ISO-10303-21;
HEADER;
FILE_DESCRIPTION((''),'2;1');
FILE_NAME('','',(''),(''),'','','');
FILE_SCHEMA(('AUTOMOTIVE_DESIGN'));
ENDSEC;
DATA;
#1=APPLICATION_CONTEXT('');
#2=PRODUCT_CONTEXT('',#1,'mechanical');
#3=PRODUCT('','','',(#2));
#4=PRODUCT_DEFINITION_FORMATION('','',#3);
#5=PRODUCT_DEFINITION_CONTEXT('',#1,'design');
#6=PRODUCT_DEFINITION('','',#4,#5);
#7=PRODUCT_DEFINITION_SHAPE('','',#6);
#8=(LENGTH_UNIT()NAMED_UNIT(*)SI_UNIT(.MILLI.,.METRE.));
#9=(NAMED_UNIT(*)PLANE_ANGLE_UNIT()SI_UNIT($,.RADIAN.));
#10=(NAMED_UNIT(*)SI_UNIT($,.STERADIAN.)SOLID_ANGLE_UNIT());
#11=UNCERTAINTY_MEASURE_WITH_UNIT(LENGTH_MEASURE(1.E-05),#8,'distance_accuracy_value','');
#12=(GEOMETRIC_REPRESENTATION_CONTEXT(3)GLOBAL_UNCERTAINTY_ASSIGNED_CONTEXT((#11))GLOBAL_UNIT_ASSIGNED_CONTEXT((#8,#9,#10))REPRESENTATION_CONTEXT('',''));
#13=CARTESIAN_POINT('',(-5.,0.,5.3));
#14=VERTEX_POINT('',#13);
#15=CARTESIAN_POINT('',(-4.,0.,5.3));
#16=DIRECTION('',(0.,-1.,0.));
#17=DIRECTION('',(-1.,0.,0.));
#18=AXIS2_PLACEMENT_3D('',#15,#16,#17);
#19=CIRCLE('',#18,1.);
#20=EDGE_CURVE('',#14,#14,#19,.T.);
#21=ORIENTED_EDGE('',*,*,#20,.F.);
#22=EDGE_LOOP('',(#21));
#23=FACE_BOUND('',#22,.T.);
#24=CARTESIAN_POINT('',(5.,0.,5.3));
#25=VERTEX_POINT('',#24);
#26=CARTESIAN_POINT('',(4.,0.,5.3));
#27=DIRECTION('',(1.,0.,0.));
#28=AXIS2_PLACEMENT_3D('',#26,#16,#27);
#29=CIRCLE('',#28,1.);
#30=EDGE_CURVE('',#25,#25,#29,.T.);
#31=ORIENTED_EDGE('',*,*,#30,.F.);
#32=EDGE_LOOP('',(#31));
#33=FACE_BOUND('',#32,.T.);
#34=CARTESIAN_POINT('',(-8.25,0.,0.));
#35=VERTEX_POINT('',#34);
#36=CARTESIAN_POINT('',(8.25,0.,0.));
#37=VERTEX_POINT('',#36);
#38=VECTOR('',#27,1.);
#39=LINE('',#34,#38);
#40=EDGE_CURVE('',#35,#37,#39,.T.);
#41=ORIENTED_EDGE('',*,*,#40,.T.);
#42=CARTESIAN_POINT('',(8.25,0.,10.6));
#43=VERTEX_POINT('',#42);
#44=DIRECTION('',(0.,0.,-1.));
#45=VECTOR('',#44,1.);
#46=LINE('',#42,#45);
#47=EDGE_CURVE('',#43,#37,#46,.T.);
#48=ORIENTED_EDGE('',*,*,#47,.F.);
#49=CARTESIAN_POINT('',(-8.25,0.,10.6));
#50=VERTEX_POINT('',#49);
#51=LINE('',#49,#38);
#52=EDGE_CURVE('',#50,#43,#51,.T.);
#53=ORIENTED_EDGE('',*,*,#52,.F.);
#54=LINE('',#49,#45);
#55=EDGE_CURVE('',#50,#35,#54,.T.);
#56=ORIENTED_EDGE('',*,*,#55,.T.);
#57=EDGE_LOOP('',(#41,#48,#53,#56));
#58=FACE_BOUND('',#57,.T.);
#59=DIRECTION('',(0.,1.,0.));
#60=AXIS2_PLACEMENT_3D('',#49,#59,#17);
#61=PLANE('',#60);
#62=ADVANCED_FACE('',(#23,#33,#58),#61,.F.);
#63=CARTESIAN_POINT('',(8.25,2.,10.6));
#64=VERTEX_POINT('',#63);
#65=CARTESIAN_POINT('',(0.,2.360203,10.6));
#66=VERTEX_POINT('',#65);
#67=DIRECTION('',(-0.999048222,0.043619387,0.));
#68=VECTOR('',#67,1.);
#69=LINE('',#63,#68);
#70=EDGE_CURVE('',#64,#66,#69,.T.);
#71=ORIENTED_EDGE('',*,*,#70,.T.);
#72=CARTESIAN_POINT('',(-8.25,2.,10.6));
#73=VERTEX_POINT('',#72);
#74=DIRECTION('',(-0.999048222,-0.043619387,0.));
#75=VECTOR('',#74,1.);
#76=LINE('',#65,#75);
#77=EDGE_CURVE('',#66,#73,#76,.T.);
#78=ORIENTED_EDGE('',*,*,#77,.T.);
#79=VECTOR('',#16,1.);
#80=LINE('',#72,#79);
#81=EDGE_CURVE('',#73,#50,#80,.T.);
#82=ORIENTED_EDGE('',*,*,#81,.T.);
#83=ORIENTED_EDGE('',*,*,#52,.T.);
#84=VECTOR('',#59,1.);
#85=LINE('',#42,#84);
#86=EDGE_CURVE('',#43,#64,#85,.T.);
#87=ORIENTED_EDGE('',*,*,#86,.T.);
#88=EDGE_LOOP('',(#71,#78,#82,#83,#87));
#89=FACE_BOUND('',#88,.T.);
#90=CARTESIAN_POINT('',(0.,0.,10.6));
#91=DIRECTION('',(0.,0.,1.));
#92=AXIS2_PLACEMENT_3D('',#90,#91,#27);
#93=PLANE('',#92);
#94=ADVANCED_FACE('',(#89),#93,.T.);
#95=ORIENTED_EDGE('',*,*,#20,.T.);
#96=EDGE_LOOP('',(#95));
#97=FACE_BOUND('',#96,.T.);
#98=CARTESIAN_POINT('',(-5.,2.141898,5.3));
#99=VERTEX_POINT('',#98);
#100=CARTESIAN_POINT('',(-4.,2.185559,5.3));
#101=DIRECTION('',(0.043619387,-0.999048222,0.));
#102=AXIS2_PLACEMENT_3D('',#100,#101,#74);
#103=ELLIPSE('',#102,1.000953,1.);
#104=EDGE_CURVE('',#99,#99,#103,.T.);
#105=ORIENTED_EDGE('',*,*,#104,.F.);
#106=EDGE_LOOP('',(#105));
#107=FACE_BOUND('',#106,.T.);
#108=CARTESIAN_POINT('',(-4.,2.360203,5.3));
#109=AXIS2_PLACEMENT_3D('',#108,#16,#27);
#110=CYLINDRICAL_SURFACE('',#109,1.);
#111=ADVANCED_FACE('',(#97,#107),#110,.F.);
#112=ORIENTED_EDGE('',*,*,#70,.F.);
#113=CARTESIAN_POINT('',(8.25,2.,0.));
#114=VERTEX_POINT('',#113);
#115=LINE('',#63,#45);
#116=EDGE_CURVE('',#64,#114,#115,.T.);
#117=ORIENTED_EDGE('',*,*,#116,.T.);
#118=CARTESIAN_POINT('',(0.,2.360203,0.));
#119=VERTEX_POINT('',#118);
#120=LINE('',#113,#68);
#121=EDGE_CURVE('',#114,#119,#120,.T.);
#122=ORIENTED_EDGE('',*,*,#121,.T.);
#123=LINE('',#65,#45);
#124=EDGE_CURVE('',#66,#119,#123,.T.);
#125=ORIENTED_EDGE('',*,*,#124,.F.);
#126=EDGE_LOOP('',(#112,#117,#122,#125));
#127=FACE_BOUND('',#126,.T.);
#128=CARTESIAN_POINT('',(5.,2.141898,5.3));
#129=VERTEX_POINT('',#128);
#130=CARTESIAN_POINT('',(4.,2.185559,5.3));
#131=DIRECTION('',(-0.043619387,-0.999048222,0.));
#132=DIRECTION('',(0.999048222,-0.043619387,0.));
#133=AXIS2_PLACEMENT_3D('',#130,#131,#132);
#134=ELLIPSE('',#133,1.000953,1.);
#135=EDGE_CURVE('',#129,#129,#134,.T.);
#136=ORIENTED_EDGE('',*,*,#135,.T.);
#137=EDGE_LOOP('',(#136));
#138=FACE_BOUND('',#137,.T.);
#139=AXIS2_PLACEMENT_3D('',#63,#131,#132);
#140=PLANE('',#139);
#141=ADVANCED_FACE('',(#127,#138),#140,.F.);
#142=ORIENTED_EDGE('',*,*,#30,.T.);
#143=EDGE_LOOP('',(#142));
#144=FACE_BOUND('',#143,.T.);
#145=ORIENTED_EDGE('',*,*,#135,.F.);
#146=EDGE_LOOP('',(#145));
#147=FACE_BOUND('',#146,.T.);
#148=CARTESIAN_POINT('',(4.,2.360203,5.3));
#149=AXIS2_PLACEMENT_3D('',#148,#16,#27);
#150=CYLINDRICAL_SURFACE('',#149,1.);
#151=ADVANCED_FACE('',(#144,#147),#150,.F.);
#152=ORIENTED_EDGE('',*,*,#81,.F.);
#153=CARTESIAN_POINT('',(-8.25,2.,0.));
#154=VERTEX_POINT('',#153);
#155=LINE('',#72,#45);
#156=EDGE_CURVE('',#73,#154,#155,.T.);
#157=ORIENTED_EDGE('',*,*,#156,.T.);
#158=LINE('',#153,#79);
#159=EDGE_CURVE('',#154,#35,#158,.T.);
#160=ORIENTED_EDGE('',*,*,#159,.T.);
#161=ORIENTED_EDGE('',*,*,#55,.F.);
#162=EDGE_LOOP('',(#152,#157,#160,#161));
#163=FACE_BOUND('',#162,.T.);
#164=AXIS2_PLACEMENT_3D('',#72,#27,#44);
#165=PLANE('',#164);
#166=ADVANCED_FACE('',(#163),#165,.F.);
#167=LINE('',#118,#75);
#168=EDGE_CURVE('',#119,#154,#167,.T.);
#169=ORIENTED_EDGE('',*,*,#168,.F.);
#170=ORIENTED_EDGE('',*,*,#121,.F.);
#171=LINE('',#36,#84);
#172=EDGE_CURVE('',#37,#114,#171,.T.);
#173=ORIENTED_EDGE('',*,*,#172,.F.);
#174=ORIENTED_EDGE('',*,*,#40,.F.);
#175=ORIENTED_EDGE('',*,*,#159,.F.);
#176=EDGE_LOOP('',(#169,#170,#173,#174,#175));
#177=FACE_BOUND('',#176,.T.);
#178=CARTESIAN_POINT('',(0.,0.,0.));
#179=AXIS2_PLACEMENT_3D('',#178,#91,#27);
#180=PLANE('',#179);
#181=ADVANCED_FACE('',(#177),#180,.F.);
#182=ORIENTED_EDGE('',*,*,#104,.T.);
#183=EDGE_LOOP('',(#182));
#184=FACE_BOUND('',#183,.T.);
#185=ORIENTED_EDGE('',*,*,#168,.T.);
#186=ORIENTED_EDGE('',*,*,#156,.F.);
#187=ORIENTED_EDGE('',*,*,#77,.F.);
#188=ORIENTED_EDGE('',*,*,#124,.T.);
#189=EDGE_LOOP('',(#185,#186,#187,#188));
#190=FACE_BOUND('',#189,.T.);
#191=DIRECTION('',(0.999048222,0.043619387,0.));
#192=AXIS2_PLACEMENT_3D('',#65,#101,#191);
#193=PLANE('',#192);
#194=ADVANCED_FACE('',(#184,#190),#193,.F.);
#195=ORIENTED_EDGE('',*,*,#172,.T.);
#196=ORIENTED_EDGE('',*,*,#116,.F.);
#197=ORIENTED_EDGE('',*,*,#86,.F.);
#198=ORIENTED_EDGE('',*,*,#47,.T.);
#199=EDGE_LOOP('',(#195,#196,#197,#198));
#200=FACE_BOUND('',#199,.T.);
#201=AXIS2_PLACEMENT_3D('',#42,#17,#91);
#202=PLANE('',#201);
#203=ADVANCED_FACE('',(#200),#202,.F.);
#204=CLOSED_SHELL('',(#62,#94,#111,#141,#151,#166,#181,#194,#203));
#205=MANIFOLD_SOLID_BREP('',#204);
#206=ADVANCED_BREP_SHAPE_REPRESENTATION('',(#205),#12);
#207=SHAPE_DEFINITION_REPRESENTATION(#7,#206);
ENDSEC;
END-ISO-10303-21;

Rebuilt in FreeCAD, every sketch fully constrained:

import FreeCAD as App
import Part
import Sketcher
Q = App.Units.Quantity


def add_polygon(sketch, points):
    """Adds a closed chain of lines whose ends are joined by coincident constraints."""
    first, n = sketch.GeometryCount, len(points)
    for a, b in zip(points, points[1:] + points[:1]):
        sketch.addGeometry(Part.LineSegment(App.Vector(*a, 0), App.Vector(*b, 0)), False)
    for i in range(n):
        sketch.addConstraint(Sketcher.Constraint("Coincident", first + i, 2, first + (i + 1) % n, 1))

doc = App.newDocument("Part")
params = doc.addObject("Spreadsheet::Sheet", "Params")
for row, (alias, value) in enumerate([
    ("sketch1_height", "2 mm"),
    ("sketch1_width", "16.5 mm"),
    ("pad1_length", "10.6 mm"),
    ("sketch2_diameter", "2 mm"),
], start=1):
    params.set(f"A{row}", alias)
    params.set(f"B{row}", "=" + value)
    params.setAlias(f"B{row}", alias)

body = doc.addObject("PartDesign::Body", "Body")

# Sketch on XY plane
sketch1 = body.newObject("Sketcher::SketchObject", "Sketch")
sketch1.AttachmentSupport = (doc.getObject("XY_Plane"), [""])
sketch1.MapMode = "FlatFace"
add_polygon(sketch1, [(-8.2, 0), (8.2, 0), (8.2, 2), (0, 2.4), (-8.2, 2)])  # lines 0-4
sketch1.addConstraint(Sketcher.Constraint("Horizontal", 0))
sketch1.addConstraint(Sketcher.Constraint("Vertical", 1))
sketch1.addConstraint(Sketcher.Constraint("Vertical", 4))
sketch1.addConstraint(Sketcher.Constraint("Symmetric", 0, 2, 4, 2, -1, 1))
sketch1.addConstraint(Sketcher.Constraint("PointOnObject", 2, 2, -2))
sketch1.addConstraint(Sketcher.Constraint("Horizontal", 1, 2, 3, 2))
sketch1.addConstraint(Sketcher.Constraint("DistanceY", 1, 1, 1, 2, 2.0))
sketch1.addConstraint(Sketcher.Constraint("DistanceX", 0, 1, 0, 2, 16.5))
sketch1.addConstraint(Sketcher.Constraint("Angle", 2, Q("177.5 deg")))
sketch1.setExpression("Constraints[11]", "Params.sketch1_height")
sketch1.setExpression("Constraints[12]", "Params.sketch1_width")
pad1 = body.newObject("PartDesign::Pad", "Pad")
pad1.Profile = sketch1
pad1.setExpression("Length", "Params.pad1_length")

# Sketch on XZ plane
sketch2 = body.newObject("Sketcher::SketchObject", "Sketch001")
sketch2.AttachmentSupport = (doc.getObject("XZ_Plane"), [""])
sketch2.MapMode = "FlatFace"
sketch2.addGeometry(Part.Circle(App.Vector(4, 5.3, 0), App.Vector(0, 0, 1), 1), False)
sketch2.addGeometry(Part.Circle(App.Vector(-4, 5.3, 0), App.Vector(0, 0, 1), 1), False)
sketch2.addConstraint(Sketcher.Constraint("Equal", 0, 1))
sketch2.addConstraint(Sketcher.Constraint("Symmetric", 0, 3, 1, 3, -2))
sketch2.addConstraint(Sketcher.Constraint("Diameter", 0, 2.0))
sketch2.addConstraint(Sketcher.Constraint("DistanceX", -1, 1, 0, 3, 4.0))
sketch2.addConstraint(Sketcher.Constraint("DistanceY", -1, 1, 0, 3, 5.3))
sketch2.setExpression("Constraints[2]", "Params.sketch2_diameter")
pocket1 = body.newObject("PartDesign::Pocket", "Pocket")
pocket1.Profile = sketch2
pocket1.Type = "ThroughAll"

doc.recompute()
